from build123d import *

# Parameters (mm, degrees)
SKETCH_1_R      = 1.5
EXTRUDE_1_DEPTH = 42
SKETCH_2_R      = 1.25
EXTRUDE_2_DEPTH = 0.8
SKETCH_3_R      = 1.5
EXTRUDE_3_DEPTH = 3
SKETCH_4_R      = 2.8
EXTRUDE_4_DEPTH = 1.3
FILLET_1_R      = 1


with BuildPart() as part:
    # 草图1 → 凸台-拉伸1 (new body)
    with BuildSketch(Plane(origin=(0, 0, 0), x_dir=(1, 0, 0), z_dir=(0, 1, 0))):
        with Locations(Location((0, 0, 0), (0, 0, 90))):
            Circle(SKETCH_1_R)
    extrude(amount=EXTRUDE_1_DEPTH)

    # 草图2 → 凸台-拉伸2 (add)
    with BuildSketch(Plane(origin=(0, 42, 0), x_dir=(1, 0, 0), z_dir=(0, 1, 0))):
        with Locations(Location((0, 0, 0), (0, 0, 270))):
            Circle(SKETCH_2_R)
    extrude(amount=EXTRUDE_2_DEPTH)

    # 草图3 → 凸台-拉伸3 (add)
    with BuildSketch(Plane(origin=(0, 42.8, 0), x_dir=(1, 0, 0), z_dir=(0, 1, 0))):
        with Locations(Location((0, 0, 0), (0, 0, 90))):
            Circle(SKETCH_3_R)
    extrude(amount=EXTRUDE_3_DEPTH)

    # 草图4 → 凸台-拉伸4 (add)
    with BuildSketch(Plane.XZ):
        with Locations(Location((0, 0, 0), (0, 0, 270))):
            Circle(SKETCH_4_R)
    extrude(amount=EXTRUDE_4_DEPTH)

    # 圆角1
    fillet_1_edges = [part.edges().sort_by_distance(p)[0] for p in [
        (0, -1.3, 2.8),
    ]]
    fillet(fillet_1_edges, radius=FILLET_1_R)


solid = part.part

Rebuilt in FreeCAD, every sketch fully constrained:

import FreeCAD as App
import Part
import Sketcher
Q = App.Units.Quantity


def edges_at(feature, points):
    """Names of the edges that pass closest to the given points."""
    edges = feature.Shape.Edges
    near = lambda p: min(range(len(edges)), key=lambda i: edges[i].distToShape(Part.Vertex(*p))[0])
    return sorted({f"Edge{near(p) + 1}" for p in points})

doc = App.newDocument("Part")
params = doc.addObject("Spreadsheet::Sheet", "Params")
for row, (alias, value) in enumerate([
    ("sketch1_diameter", "3 mm"),
    ("pad1_length", "42 mm"),
    ("sketch2_diameter", "2.5 mm"),
    ("pad2_length", "0.8 mm"),
    ("sketch3_diameter", "3 mm"),
    ("pad3_length", "3 mm"),
    ("sketch4_diameter", "5.6 mm"),
    ("pad4_length", "1.3 mm"),
    ("fillet_radius", "1 mm"),
], start=1):
    params.set(f"A{row}", alias)
    params.set(f"B{row}", "=" + value)
    params.setAlias(f"B{row}", alias)

body = doc.addObject("PartDesign::Body", "Body")

# Sketch on XZ plane
sketch1 = body.newObject("Sketcher::SketchObject", "Sketch")
sketch1.AttachmentSupport = (doc.getObject("XZ_Plane"), [""])
sketch1.MapMode = "FlatFace"
sketch1.addGeometry(Part.Circle(App.Vector(0, 0, 0), App.Vector(0, 0, 1), 1.5), False)
sketch1.addConstraint(Sketcher.Constraint("Coincident", 0, 3, -1, 1))
sketch1.addConstraint(Sketcher.Constraint("Diameter", 0, Q("3 mm")))
sketch1.setExpression("Constraints[1]", "Params.sketch1_diameter")
pad1 = body.newObject("PartDesign::Pad", "Pad")
pad1.Profile = sketch1
pad1.setExpression("Length", "Params.pad1_length")
pad1.Reversed = True

# Sketch on XZ plane
sketch2 = body.newObject("Sketcher::SketchObject", "Sketch001")
sketch2.AttachmentSupport = (doc.getObject("XZ_Plane"), [""])
sketch2.MapMode = "FlatFace"
sketch2.AttachmentOffset = App.Placement(App.Vector(0, 0, -42), App.Rotation())
sketch2.addGeometry(Part.Circle(App.Vector(0, 0, 0), App.Vector(0, 0, 1), 1.2), False)
sketch2.addConstraint(Sketcher.Constraint("Coincident", 0, 3, -1, 1))
sketch2.addConstraint(Sketcher.Constraint("Diameter", 0, Q("2.5 mm")))
sketch2.setExpression("Constraints[1]", "Params.sketch2_diameter")
pad2 = body.newObject("PartDesign::Pad", "Pad001")
pad2.Profile = sketch2
pad2.setExpression("Length", "Params.pad2_length")
pad2.Reversed = True

# Sketch on XZ plane
sketch3 = body.newObject("Sketcher::SketchObject", "Sketch002")
sketch3.AttachmentSupport = (doc.getObject("XZ_Plane"), [""])
sketch3.MapMode = "FlatFace"
sketch3.AttachmentOffset = App.Placement(App.Vector(0, 0, -42.8), App.Rotation())
sketch3.addGeometry(Part.Circle(App.Vector(0, 0, 0), App.Vector(0, 0, 1), 1.5), False)
sketch3.addConstraint(Sketcher.Constraint("Coincident", 0, 3, -1, 1))
sketch3.addConstraint(Sketcher.Constraint("Diameter", 0, Q("3 mm")))
sketch3.setExpression("Constraints[1]", "Params.sketch3_diameter")
pad3 = body.newObject("PartDesign::Pad", "Pad002")
pad3.Profile = sketch3
pad3.setExpression("Length", "Params.pad3_length")
pad3.Reversed = True

# Sketch on XZ plane
sketch4 = body.newObject("Sketcher::SketchObject", "Sketch003")
sketch4.AttachmentSupport = (doc.getObject("XZ_Plane"), [""])
sketch4.MapMode = "FlatFace"
sketch4.addGeometry(Part.Circle(App.Vector(0, 0, 0), App.Vector(0, 0, 1), 2.8), False)
sketch4.addConstraint(Sketcher.Constraint("Coincident", 0, 3, -1, 1))
sketch4.addConstraint(Sketcher.Constraint("Diameter", 0, Q("5.6 mm")))
sketch4.setExpression("Constraints[1]", "Params.sketch4_diameter")
pad4 = body.newObject("PartDesign::Pad", "Pad003")
pad4.Profile = sketch4
pad4.setExpression("Length", "Params.pad4_length")
doc.recompute()

fillet = body.newObject("PartDesign::Fillet", "Fillet")
fillet.Base = (pad4, edges_at(pad4, [(0, -1.3, 2.8)]))
fillet.setExpression("Radius", "Params.fillet_radius")

doc.recompute()
